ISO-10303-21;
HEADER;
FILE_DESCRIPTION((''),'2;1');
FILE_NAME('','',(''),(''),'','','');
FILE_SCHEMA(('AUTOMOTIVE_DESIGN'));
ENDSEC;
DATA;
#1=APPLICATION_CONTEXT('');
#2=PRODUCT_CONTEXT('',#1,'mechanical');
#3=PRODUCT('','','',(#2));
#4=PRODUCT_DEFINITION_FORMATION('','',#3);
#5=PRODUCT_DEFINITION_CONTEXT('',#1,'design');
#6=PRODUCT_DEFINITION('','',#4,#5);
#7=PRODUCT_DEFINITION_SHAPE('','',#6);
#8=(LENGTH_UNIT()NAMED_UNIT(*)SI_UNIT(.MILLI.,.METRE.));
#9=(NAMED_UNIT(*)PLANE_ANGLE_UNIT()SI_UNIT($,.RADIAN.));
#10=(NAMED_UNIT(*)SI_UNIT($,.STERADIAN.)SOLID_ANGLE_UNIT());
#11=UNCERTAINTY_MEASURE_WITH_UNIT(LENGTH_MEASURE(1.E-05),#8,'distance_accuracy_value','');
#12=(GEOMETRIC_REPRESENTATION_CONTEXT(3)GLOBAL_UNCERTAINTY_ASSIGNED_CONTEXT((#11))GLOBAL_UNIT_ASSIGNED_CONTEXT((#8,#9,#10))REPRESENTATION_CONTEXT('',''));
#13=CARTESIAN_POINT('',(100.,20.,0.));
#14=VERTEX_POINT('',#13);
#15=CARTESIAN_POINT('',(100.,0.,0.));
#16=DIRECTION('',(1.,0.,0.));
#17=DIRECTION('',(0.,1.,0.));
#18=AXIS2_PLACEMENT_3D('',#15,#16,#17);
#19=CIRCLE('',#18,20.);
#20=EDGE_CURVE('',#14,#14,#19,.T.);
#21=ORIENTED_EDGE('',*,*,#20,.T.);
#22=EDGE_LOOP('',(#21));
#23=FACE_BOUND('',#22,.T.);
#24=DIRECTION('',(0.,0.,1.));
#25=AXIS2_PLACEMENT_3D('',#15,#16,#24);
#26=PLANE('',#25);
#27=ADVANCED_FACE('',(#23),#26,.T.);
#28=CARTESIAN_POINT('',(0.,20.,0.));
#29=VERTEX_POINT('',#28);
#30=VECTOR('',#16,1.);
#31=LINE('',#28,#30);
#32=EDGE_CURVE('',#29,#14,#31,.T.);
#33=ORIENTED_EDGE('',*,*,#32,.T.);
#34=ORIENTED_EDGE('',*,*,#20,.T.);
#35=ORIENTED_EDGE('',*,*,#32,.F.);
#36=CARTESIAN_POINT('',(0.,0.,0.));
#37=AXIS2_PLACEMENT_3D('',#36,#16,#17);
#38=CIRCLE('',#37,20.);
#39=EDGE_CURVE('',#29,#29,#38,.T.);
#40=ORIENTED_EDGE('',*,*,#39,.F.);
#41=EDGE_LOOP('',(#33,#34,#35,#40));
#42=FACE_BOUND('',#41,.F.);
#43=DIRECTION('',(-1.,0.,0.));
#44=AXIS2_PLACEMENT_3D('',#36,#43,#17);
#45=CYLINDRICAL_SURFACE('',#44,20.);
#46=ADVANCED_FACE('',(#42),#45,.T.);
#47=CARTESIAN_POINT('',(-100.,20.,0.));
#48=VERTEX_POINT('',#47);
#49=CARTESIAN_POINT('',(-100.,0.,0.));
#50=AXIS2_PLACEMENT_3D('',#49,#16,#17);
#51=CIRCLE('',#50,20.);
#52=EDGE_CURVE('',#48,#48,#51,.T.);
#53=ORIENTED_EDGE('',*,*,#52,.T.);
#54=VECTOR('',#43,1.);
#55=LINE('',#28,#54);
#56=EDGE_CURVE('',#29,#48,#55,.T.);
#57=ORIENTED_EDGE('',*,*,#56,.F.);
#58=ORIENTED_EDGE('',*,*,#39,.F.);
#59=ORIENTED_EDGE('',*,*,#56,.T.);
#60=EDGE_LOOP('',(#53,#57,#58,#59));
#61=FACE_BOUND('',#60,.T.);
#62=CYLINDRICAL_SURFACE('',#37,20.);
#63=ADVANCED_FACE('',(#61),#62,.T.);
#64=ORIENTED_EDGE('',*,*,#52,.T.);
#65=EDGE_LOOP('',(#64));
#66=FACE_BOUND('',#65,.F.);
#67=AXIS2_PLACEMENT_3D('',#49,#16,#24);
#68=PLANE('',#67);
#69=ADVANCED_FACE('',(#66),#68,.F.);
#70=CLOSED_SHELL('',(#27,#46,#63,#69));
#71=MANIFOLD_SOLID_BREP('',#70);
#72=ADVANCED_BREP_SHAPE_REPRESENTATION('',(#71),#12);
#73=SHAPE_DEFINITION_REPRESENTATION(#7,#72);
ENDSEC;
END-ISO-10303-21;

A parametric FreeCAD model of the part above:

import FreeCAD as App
import Part
import Sketcher

V = App.Vector
Q = App.Units.Quantity

doc = App.newDocument("Part")
params = doc.addObject("Spreadsheet::Sheet", "Params")
for row, (alias, value) in enumerate([
    ("pad1_length", "200 mm"),
], start=1):
    params.set(f"A{row}", alias)
    params.set(f"B{row}", "=" + value)
    params.setAlias(f"B{row}", alias)

body = doc.addObject("PartDesign::Body", "Body")

# Sketch on YZ plane
sketch1 = body.newObject("Sketcher::SketchObject", "Sketch")
sketch1.AttachmentSupport = (doc.getObject("YZ_Plane"), [""])
sketch1.MapMode = "FlatFace"
sketch1.addGeometry(Part.Circle(V(0, 0, 0), V(0, 0, 1), 20), False)
sketch1.addConstraint(Sketcher.Constraint("Coincident", 0, 3, -1, 1))
sketch1.addConstraint(Sketcher.Constraint("Diameter", 0, Q("1.5748 in")))
pad1 = body.newObject("PartDesign::Pad", "Pad")
pad1.Profile = sketch1
pad1.setExpression("Length", "Params.pad1_length")
pad1.Midplane = True

doc.recompute()
